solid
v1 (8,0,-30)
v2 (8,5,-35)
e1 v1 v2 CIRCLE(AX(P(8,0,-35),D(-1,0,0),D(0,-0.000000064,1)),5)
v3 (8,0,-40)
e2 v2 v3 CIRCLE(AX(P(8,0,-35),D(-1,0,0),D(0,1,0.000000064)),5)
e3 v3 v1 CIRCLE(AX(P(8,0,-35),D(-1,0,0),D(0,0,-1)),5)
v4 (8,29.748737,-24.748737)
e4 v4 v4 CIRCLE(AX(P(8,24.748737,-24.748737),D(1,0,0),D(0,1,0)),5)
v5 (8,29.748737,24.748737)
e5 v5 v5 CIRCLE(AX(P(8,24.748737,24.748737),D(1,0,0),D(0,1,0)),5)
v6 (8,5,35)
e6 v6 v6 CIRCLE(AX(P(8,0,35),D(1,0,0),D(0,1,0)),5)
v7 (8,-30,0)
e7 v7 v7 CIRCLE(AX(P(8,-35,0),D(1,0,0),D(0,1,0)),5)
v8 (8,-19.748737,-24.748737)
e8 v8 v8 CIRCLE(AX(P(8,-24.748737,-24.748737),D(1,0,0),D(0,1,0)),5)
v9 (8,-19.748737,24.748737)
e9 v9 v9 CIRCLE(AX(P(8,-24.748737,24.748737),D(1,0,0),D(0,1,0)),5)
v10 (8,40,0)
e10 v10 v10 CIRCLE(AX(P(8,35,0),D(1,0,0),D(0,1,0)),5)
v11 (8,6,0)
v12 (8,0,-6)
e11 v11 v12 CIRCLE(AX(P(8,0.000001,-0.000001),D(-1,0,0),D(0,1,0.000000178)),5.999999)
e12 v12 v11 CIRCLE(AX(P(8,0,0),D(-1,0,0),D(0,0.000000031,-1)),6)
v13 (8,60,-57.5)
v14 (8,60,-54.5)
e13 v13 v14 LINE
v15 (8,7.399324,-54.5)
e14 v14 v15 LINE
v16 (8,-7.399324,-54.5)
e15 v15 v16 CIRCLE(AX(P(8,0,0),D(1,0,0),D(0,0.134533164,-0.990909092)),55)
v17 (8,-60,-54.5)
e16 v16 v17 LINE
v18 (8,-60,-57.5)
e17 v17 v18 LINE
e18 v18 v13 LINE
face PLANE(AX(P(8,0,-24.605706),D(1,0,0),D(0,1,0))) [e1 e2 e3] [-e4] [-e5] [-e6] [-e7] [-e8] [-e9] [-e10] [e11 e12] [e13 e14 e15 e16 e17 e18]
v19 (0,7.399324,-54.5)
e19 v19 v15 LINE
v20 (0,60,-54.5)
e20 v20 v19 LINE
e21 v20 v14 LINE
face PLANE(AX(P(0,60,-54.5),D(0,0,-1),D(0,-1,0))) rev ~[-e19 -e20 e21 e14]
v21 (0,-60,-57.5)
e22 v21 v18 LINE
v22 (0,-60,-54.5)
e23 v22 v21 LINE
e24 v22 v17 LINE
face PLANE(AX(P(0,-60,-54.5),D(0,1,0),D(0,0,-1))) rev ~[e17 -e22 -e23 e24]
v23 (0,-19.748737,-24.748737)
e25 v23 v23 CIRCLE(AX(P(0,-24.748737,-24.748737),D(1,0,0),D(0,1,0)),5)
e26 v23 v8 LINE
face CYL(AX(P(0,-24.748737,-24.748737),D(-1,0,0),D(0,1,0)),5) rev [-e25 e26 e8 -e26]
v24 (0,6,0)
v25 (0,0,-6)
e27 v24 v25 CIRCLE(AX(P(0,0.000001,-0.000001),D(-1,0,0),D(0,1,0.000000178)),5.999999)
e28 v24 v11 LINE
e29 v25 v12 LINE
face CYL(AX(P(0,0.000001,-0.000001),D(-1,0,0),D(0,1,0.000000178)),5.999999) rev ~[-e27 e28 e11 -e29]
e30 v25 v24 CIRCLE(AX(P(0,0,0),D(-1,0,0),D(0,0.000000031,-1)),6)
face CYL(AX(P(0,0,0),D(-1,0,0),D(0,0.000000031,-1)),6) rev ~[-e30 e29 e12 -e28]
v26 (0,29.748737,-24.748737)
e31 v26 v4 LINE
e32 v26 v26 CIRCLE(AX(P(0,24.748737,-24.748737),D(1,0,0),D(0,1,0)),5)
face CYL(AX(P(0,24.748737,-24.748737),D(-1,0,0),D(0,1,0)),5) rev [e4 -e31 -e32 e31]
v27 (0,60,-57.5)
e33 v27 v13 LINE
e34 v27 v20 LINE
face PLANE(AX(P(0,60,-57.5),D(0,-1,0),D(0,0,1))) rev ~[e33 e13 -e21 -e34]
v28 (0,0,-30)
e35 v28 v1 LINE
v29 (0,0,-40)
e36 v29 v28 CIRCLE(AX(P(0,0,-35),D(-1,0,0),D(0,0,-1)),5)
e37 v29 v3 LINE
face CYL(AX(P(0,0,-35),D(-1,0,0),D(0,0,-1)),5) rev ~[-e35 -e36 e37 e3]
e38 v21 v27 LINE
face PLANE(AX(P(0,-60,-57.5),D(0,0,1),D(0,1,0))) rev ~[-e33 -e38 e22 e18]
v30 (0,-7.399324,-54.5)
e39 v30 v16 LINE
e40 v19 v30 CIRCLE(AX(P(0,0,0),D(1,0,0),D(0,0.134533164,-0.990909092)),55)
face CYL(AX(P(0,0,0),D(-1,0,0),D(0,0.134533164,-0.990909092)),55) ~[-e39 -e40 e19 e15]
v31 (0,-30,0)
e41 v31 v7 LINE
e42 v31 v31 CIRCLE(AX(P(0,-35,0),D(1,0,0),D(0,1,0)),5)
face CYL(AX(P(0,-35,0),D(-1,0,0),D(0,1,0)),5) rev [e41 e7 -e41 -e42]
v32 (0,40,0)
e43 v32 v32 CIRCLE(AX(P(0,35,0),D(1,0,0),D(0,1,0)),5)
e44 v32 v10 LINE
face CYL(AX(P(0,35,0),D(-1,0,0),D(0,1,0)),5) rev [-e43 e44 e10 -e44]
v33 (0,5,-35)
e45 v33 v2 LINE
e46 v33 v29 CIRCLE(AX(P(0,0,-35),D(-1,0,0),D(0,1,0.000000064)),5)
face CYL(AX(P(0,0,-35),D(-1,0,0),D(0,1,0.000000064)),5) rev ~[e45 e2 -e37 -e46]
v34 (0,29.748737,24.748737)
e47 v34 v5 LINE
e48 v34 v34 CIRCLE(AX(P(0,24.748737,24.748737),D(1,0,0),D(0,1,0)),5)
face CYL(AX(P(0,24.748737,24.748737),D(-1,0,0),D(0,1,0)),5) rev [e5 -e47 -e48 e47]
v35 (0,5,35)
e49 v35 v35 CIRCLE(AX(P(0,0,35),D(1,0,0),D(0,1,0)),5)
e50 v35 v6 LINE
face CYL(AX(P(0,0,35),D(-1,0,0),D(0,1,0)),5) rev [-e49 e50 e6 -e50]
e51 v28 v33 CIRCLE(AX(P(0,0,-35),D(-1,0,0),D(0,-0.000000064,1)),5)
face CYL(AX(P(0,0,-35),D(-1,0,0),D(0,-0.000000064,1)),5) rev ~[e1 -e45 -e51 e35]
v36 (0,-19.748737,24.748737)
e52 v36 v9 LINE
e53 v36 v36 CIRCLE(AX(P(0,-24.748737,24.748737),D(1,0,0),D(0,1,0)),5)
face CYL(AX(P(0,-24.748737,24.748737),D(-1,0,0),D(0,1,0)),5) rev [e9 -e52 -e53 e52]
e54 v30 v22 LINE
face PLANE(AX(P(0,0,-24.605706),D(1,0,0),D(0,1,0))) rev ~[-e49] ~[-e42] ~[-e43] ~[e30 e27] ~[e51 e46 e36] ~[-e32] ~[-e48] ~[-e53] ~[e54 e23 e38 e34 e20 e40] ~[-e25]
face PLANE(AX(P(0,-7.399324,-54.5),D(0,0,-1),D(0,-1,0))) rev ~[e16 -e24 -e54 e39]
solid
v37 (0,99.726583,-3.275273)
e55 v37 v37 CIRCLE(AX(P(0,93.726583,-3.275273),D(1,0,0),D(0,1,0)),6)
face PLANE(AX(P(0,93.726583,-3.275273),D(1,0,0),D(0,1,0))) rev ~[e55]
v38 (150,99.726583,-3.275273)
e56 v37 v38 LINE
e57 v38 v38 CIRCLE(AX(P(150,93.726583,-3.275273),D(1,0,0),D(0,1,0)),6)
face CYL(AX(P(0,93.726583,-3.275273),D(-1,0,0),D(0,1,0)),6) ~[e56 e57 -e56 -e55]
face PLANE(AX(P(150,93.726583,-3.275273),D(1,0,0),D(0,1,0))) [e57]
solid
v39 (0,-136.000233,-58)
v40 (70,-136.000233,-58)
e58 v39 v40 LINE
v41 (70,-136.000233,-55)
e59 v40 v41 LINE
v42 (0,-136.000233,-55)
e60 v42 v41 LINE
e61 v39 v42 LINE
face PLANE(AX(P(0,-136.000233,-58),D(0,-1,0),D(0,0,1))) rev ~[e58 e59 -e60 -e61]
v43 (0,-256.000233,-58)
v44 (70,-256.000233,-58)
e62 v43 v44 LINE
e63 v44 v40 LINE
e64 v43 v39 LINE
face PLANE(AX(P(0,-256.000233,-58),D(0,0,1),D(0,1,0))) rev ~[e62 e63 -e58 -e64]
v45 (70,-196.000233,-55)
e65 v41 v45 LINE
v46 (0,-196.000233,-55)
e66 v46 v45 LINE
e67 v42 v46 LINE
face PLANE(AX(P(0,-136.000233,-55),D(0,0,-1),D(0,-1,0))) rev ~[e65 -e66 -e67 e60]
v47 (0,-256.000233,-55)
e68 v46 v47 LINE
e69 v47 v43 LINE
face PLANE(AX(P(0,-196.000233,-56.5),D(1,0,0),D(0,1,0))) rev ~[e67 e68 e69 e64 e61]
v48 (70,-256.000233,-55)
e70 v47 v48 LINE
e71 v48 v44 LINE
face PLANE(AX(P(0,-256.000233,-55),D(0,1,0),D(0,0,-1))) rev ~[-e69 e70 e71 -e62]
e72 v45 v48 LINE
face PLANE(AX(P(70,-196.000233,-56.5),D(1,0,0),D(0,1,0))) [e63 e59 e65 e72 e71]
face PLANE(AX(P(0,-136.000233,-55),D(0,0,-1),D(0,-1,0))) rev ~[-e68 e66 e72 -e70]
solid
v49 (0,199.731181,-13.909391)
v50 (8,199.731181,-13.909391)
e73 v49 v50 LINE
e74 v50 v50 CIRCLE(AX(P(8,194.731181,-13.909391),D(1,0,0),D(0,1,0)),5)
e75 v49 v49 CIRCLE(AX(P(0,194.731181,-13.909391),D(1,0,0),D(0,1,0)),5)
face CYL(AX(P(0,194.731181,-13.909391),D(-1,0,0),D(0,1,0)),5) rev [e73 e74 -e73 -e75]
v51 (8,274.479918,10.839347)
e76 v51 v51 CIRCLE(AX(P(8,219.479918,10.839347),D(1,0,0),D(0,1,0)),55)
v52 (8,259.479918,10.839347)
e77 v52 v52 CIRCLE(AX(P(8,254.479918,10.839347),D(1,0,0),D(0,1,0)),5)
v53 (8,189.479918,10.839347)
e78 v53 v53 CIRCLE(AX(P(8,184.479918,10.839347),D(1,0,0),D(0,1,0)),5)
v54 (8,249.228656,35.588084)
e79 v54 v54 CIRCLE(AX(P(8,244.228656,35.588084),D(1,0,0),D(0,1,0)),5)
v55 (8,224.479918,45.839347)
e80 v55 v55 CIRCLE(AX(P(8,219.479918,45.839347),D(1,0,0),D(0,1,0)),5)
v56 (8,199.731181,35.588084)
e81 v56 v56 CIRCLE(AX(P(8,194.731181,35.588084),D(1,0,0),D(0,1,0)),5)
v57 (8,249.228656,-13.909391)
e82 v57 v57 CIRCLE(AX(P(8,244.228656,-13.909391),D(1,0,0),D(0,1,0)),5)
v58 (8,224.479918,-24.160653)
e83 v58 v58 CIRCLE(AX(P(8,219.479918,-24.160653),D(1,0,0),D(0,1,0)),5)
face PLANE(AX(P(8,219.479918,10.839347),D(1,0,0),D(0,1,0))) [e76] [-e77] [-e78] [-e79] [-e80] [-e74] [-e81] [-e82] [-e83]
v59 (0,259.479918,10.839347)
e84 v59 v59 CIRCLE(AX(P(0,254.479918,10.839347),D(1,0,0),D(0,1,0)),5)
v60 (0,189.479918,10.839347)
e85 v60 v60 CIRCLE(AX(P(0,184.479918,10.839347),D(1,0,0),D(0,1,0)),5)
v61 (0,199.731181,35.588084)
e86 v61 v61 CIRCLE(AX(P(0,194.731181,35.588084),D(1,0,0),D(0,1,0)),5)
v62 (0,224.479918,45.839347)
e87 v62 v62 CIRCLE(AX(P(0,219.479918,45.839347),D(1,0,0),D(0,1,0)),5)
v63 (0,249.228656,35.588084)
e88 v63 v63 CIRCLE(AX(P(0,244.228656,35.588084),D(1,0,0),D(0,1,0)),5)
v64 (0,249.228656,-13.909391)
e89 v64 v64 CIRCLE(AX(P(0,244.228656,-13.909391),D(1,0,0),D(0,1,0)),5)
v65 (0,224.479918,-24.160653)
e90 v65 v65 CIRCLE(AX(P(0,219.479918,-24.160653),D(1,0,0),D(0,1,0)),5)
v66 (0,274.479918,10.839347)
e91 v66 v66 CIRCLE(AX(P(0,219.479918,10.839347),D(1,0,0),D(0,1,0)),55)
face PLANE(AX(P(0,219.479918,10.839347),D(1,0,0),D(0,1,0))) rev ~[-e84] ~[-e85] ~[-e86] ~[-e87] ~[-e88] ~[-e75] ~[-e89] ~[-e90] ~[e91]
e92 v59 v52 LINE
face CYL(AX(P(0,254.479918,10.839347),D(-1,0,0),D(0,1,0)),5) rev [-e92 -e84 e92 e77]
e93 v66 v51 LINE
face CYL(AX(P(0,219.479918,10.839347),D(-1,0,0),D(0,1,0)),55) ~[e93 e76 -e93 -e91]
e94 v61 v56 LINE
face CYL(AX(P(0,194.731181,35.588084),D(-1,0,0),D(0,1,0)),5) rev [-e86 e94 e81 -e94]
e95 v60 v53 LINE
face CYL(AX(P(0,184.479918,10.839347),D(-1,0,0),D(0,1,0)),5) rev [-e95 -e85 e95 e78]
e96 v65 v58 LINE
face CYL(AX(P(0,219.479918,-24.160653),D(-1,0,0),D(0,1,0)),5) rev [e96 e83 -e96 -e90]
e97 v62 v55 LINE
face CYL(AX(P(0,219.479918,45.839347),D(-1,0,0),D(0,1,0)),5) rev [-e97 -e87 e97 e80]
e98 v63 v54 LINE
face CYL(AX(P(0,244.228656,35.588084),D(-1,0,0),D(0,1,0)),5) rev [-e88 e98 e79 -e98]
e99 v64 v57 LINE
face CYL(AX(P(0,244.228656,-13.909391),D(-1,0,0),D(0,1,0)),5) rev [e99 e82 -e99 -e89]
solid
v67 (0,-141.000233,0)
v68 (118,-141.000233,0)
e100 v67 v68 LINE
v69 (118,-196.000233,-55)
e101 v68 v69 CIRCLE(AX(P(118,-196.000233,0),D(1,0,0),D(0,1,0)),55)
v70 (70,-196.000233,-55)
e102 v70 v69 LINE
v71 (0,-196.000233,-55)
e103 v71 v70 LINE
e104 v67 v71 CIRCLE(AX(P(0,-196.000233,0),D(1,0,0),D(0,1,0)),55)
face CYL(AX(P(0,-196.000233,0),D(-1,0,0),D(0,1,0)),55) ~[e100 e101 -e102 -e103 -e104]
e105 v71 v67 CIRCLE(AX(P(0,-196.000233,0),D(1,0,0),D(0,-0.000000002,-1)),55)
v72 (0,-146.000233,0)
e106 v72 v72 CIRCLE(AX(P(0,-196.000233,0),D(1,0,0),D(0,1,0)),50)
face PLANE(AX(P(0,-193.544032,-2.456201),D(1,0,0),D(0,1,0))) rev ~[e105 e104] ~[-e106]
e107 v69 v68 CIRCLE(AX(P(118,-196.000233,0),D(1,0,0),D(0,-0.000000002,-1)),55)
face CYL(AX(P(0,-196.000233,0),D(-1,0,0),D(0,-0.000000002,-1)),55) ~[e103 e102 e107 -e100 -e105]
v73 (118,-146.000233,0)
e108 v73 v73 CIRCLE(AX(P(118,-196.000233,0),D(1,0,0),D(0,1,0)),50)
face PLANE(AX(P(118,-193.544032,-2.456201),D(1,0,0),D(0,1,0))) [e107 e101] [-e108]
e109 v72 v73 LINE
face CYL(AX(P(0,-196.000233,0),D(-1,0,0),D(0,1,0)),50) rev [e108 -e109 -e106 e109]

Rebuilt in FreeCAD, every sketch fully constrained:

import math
import FreeCAD as App
import Part
import Sketcher

V = App.Vector

doc = App.newDocument("Part")
body = doc.addObject("PartDesign::Body", "Body")

sketch1 = body.newObject("Sketcher::SketchObject", "Sketch")
sketch1.AttachmentSupport = (doc.getObject("YZ_Plane"), [""])
sketch1.MapMode = "FlatFace"
sketch1.addGeometry([
    Part.LineSegment(V(60, -54.5, 0), V(7.399324, -54.5, 0)),
    Part.ArcOfCircle(Part.Circle(V(0, 0, 0), V(0, 0, 1), 55), math.radians(-82.268374), math.radians(262.268374)),
    Part.LineSegment(V(-7.399324, -54.5, 0), V(-60, -54.5, 0)),
    Part.LineSegment(V(-60, -54.5, 0), V(-60, -57.5, 0)),
    Part.LineSegment(V(-60, -57.5, 0), V(60, -57.5, 0)),
    Part.LineSegment(V(60, -57.5, 0), V(60, -54.5, 0)),
    Part.Circle(V(-24.748737, -24.748737, 0), V(0, 0, 1), 5),
    Part.ArcOfCircle(Part.Circle(V(0, -35, 0), V(0, 0, 1), 5), math.radians(-90.000004), math.radians(0.000004)),
    Part.ArcOfCircle(Part.Circle(V(0, -35, 0), V(0, 0, 1), 5), math.radians(90), math.radians(270)),
    Part.ArcOfCircle(Part.Circle(V(0, -35, 0), V(0, 0, 1), 5), math.radians(-0.000004), math.radians(90.000004)),
    Part.Circle(V(24.748737, -24.748737, 0), V(0, 0, 1), 5),
    Part.Circle(V(-35, 0, 0), V(0, 0, 1), 5),
    Part.ArcOfCircle(Part.Circle(V(0.000001, -0.000001, 0), V(0, 0, 1), 5.999999), math.radians(-90.00001), math.radians(0.00001)),
    Part.ArcOfCircle(Part.Circle(V(0, 0, 0), V(0, 0, 1), 6), math.radians(-0.000002), math.radians(270.000002)),
    Part.Circle(V(-24.748737, 24.748737, 0), V(0, 0, 1), 5),
    Part.Circle(V(35, 0, 0), V(0, 0, 1), 5),
    Part.Circle(V(0, 35, 0), V(0, 0, 1), 5),
    Part.Circle(V(24.748737, 24.748737, 0), V(0, 0, 1), 5),
], False)
sketch1.addConstraint([
    Sketcher.Constraint("Coincident", 0, 2, 1, 1),
    Sketcher.Constraint("Coincident", 1, 2, 2, 1),
    Sketcher.Constraint("Coincident", 2, 2, 3, 1),
    Sketcher.Constraint("Coincident", 3, 2, 4, 1),
    Sketcher.Constraint("Coincident", 4, 2, 5, 1),
    Sketcher.Constraint("Coincident", 5, 2, 0, 1),
    Sketcher.Constraint("Tangent", 7, 1, 8, 2),
    Sketcher.Constraint("Tangent", 8, 1, 9, 2),
    Sketcher.Constraint("Tangent", 9, 1, 7, 2),
    Sketcher.Constraint("Tangent", 12, 1, 13, 2),
    Sketcher.Constraint("Coincident", 13, 1, 12, 2),
    Sketcher.Constraint("Horizontal", 0),
    Sketcher.Constraint("Horizontal", 2),
    Sketcher.Constraint("Vertical", 3),
    Sketcher.Constraint("Horizontal", 4),
    Sketcher.Constraint("Vertical", 5),
    Sketcher.Constraint("Coincident", 1, 3, -1, 1),
    Sketcher.Constraint("Coincident", 12, 3, -1, 1),
    Sketcher.Constraint("Equal", 6, 7),
    Sketcher.Constraint("Equal", 9, 10),
    Sketcher.Constraint("Equal", 10, 11),
    Sketcher.Constraint("Equal", 11, 14),
    Sketcher.Constraint("Equal", 14, 15),
    Sketcher.Constraint("Equal", 15, 16),
    Sketcher.Constraint("Equal", 16, 17),
    Sketcher.Constraint("Symmetric", 10, 3, 14, 3, -1, 1),
    Sketcher.Constraint("Symmetric", 11, 3, 15, 3, -1, 1),
    Sketcher.Constraint("Symmetric", 7, 3, 16, 3, -1, 1),
    Sketcher.Constraint("Symmetric", 6, 3, 17, 3, -1, 1),
    Sketcher.Constraint("Symmetric", 6, 3, 10, 3, -2),
    Sketcher.Constraint("Symmetric", 2, 2, 5, 2, -2),
    Sketcher.Constraint("PointOnObject", 7, 3, -2),
    Sketcher.Constraint("PointOnObject", 11, 3, -1),
    Sketcher.Constraint("PointOnObject", 7, 1, -2),
    Sketcher.Constraint("PointOnObject", 8, 1, -2),
    Sketcher.Constraint("PointOnObject", 12, 1, -2),
    Sketcher.Constraint("PointOnObject", 13, 1, -1),
    Sketcher.Constraint("Horizontal", 8, 3, 9, 1),
    Sketcher.Constraint("Diameter", 6, 10.0),
    Sketcher.Constraint("Radius", 1, 55.0),
    Sketcher.Constraint("Radius", 12, 5.999999),
    Sketcher.Constraint("DistanceX", 4, 1, 4, 2, 120.0),
    Sketcher.Constraint("DistanceY", 3, 2, 3, 1, 3.0),
    Sketcher.Constraint("DistanceY", 7, 3, -1, 1, 35.0),
    Sketcher.Constraint("DistanceX", 11, 3, -1, 1, 35.0),
    Sketcher.Constraint("DistanceY", 0, 2, -1, 1, 54.5),
    Sketcher.Constraint("DistanceX", 14, 3, 12, 3, 24.748738),
    Sketcher.Constraint("DistanceY", 12, 3, 14, 3, 24.748738),
])
pad1 = body.newObject("PartDesign::Pad", "Pad")
pad1.Profile = sketch1
pad1.Length = 8
body2 = doc.addObject("PartDesign::Body", "Body001")

sketch2 = body2.newObject("Sketcher::SketchObject", "Sketch001")
sketch2.AttachmentSupport = (doc.getObject("YZ_Plane001"), [""])
sketch2.MapMode = "FlatFace"
sketch2.addGeometry(Part.Circle(V(93.726583, -3.275273, 0), V(0, 0, 1), 6), False)
sketch2.addConstraint([
    Sketcher.Constraint("Diameter", 0, 12.0),
    Sketcher.Constraint("DistanceX", -1, 1, 0, 3, 93.726583),
    Sketcher.Constraint("DistanceY", 0, 3, -1, 1, 3.275273),
])
pad2 = body2.newObject("PartDesign::Pad", "Pad001")
pad2.Profile = sketch2
pad2.Length = 150
body3 = doc.addObject("PartDesign::Body", "Body002")

sketch3 = body3.newObject("Sketcher::SketchObject", "Sketch002")
sketch3.AttachmentSupport = (doc.getObject("YZ_Plane002"), [""])
sketch3.MapMode = "FlatFace"
sketch3.addGeometry([
    Part.Circle(V(219.479918, 10.839347, 0), V(0, 0, 1), 55),
    Part.Circle(V(194.731181, -13.909391, 0), V(0, 0, 1), 5),
    Part.Circle(V(219.479918, -24.160653, 0), V(0, 0, 1), 5),
    Part.Circle(V(244.228656, -13.909391, 0), V(0, 0, 1), 5),
    Part.Circle(V(184.479918, 10.839347, 0), V(0, 0, 1), 5),
    Part.Circle(V(194.731181, 35.588084, 0), V(0, 0, 1), 5),
    Part.Circle(V(254.479918, 10.839347, 0), V(0, 0, 1), 5),
    Part.Circle(V(219.479918, 45.839347, 0), V(0, 0, 1), 5),
    Part.Circle(V(244.228656, 35.588084, 0), V(0, 0, 1), 5),
], False)
sketch3.addConstraint([
    Sketcher.Constraint("Equal", 1, 2),
    Sketcher.Constraint("Equal", 2, 3),
    Sketcher.Constraint("Equal", 3, 4),
    Sketcher.Constraint("Equal", 4, 5),
    Sketcher.Constraint("Equal", 5, 6),
    Sketcher.Constraint("Equal", 6, 7),
    Sketcher.Constraint("Equal", 7, 8),
    Sketcher.Constraint("Horizontal", 1, 3, 3, 3),
    Sketcher.Constraint("Horizontal", 0, 3, 4, 3),
    Sketcher.Constraint("Horizontal", 4, 3, 6, 3),
    Sketcher.Constraint("Horizontal", 5, 3, 8, 3),
    Sketcher.Constraint("Vertical", 0, 3, 2, 3),
    Sketcher.Constraint("Vertical", 1, 3, 5, 3),
    Sketcher.Constraint("Vertical", 2, 3, 7, 3),
    Sketcher.Constraint("Vertical", 3, 3, 8, 3),
    Sketcher.Constraint("Diameter", 0, 110.0),
    Sketcher.Constraint("Diameter", 1, 10.0),
    Sketcher.Constraint("DistanceY", 2, 3, 0, 3, 35.0),
    Sketcher.Constraint("DistanceX", 4, 3, 0, 3, 35.0),
    Sketcher.Constraint("DistanceX", 0, 3, 6, 3, 35.0),
    Sketcher.Constraint("DistanceY", 0, 3, 7, 3, 35.0),
    Sketcher.Constraint("DistanceX", -1, 1, 0, 3, 219.479918),
    Sketcher.Constraint("DistanceX", -1, 1, 1, 3, 194.731181),
    Sketcher.Constraint("DistanceY", 1, 3, -1, 1, 13.909391),
    Sketcher.Constraint("DistanceX", 2, 3, 3, 3, 24.748738),
    Sketcher.Constraint("DistanceY", -1, 1, 0, 3, 10.839347),
    Sketcher.Constraint("DistanceY", -1, 1, 5, 3, 35.588084),
])
pad3 = body3.newObject("PartDesign::Pad", "Pad002")
pad3.Profile = sketch3
pad3.Length = 8
body4 = doc.addObject("PartDesign::Body", "Body003")
body4.AllowCompound = True

sketch4 = body4.newObject("Sketcher::SketchObject", "Sketch003")
sketch4.AttachmentSupport = (doc.getObject("YZ_Plane003"), [""])
sketch4.MapMode = "FlatFace"
sketch4.addGeometry([
    Part.ArcOfCircle(Part.Circle(V(-196.000233, 0, 0), V(0, 0, 1), 55), math.radians(-90), math.radians(0)),
    Part.ArcOfCircle(Part.Circle(V(-196.000233, 0, 0), V(0, 0, 1), 55), math.radians(0), math.radians(270)),
    Part.Circle(V(-196.000233, 0, 0), V(0, 0, 1), 50),
], False)
sketch4.addConstraint([
    Sketcher.Constraint("Tangent", 0, 1, 1, 2),
    Sketcher.Constraint("Coincident", 1, 1, 0, 2),
    Sketcher.Constraint("Coincident", 2, 3, 0, 3),
    Sketcher.Constraint("PointOnObject", 0, 3, -1),
    Sketcher.Constraint("PointOnObject", 1, 1, -1),
    Sketcher.Constraint("Vertical", 2, 3, 0, 1),
    Sketcher.Constraint("Diameter", 2, 100.0),
    Sketcher.Constraint("Radius", 0, 55.0),
    Sketcher.Constraint("DistanceX", 0, 3, -1, 1, 196.000233),
])
pad4 = body4.newObject("PartDesign::Pad", "Pad003")
pad4.Profile = sketch4
pad4.Length = 118

sketch5 = body4.newObject("Sketcher::SketchObject", "Sketch004")
sketch5.AttachmentSupport = (doc.getObject("YZ_Plane003"), [""])
sketch5.MapMode = "FlatFace"
sketch5.addGeometry([
    Part.LineSegment(V(-136.000233, -55, 0), V(-256.000233, -55, 0)),
    Part.LineSegment(V(-256.000233, -55, 0), V(-256.000233, -58, 0)),
    Part.LineSegment(V(-256.000233, -58, 0), V(-136.000233, -58, 0)),
    Part.LineSegment(V(-136.000233, -58, 0), V(-136.000233, -55, 0)),
], False)
sketch5.addConstraint([
    Sketcher.Constraint("Coincident", 0, 2, 1, 1),
    Sketcher.Constraint("Coincident", 1, 2, 2, 1),
    Sketcher.Constraint("Coincident", 2, 2, 3, 1),
    Sketcher.Constraint("Coincident", 3, 2, 0, 1),
    Sketcher.Constraint("Horizontal", 0),
    Sketcher.Constraint("Vertical", 1),
    Sketcher.Constraint("Horizontal", 2),
    Sketcher.Constraint("Vertical", 3),
    Sketcher.Constraint("DistanceX", 0, 2, 0, 1, 120.0),
    Sketcher.Constraint("DistanceY", 1, 2, 1, 1, 3.0),
    Sketcher.Constraint("DistanceY", 0, 2, -1, 1, 55.0),
    Sketcher.Constraint("DistanceX", 0, 2, -1, 1, 256.000233),
])
pad5 = body4.newObject("PartDesign::Pad", "Pad004")
pad5.Profile = sketch5
pad5.Length = 70

doc.recompute()
